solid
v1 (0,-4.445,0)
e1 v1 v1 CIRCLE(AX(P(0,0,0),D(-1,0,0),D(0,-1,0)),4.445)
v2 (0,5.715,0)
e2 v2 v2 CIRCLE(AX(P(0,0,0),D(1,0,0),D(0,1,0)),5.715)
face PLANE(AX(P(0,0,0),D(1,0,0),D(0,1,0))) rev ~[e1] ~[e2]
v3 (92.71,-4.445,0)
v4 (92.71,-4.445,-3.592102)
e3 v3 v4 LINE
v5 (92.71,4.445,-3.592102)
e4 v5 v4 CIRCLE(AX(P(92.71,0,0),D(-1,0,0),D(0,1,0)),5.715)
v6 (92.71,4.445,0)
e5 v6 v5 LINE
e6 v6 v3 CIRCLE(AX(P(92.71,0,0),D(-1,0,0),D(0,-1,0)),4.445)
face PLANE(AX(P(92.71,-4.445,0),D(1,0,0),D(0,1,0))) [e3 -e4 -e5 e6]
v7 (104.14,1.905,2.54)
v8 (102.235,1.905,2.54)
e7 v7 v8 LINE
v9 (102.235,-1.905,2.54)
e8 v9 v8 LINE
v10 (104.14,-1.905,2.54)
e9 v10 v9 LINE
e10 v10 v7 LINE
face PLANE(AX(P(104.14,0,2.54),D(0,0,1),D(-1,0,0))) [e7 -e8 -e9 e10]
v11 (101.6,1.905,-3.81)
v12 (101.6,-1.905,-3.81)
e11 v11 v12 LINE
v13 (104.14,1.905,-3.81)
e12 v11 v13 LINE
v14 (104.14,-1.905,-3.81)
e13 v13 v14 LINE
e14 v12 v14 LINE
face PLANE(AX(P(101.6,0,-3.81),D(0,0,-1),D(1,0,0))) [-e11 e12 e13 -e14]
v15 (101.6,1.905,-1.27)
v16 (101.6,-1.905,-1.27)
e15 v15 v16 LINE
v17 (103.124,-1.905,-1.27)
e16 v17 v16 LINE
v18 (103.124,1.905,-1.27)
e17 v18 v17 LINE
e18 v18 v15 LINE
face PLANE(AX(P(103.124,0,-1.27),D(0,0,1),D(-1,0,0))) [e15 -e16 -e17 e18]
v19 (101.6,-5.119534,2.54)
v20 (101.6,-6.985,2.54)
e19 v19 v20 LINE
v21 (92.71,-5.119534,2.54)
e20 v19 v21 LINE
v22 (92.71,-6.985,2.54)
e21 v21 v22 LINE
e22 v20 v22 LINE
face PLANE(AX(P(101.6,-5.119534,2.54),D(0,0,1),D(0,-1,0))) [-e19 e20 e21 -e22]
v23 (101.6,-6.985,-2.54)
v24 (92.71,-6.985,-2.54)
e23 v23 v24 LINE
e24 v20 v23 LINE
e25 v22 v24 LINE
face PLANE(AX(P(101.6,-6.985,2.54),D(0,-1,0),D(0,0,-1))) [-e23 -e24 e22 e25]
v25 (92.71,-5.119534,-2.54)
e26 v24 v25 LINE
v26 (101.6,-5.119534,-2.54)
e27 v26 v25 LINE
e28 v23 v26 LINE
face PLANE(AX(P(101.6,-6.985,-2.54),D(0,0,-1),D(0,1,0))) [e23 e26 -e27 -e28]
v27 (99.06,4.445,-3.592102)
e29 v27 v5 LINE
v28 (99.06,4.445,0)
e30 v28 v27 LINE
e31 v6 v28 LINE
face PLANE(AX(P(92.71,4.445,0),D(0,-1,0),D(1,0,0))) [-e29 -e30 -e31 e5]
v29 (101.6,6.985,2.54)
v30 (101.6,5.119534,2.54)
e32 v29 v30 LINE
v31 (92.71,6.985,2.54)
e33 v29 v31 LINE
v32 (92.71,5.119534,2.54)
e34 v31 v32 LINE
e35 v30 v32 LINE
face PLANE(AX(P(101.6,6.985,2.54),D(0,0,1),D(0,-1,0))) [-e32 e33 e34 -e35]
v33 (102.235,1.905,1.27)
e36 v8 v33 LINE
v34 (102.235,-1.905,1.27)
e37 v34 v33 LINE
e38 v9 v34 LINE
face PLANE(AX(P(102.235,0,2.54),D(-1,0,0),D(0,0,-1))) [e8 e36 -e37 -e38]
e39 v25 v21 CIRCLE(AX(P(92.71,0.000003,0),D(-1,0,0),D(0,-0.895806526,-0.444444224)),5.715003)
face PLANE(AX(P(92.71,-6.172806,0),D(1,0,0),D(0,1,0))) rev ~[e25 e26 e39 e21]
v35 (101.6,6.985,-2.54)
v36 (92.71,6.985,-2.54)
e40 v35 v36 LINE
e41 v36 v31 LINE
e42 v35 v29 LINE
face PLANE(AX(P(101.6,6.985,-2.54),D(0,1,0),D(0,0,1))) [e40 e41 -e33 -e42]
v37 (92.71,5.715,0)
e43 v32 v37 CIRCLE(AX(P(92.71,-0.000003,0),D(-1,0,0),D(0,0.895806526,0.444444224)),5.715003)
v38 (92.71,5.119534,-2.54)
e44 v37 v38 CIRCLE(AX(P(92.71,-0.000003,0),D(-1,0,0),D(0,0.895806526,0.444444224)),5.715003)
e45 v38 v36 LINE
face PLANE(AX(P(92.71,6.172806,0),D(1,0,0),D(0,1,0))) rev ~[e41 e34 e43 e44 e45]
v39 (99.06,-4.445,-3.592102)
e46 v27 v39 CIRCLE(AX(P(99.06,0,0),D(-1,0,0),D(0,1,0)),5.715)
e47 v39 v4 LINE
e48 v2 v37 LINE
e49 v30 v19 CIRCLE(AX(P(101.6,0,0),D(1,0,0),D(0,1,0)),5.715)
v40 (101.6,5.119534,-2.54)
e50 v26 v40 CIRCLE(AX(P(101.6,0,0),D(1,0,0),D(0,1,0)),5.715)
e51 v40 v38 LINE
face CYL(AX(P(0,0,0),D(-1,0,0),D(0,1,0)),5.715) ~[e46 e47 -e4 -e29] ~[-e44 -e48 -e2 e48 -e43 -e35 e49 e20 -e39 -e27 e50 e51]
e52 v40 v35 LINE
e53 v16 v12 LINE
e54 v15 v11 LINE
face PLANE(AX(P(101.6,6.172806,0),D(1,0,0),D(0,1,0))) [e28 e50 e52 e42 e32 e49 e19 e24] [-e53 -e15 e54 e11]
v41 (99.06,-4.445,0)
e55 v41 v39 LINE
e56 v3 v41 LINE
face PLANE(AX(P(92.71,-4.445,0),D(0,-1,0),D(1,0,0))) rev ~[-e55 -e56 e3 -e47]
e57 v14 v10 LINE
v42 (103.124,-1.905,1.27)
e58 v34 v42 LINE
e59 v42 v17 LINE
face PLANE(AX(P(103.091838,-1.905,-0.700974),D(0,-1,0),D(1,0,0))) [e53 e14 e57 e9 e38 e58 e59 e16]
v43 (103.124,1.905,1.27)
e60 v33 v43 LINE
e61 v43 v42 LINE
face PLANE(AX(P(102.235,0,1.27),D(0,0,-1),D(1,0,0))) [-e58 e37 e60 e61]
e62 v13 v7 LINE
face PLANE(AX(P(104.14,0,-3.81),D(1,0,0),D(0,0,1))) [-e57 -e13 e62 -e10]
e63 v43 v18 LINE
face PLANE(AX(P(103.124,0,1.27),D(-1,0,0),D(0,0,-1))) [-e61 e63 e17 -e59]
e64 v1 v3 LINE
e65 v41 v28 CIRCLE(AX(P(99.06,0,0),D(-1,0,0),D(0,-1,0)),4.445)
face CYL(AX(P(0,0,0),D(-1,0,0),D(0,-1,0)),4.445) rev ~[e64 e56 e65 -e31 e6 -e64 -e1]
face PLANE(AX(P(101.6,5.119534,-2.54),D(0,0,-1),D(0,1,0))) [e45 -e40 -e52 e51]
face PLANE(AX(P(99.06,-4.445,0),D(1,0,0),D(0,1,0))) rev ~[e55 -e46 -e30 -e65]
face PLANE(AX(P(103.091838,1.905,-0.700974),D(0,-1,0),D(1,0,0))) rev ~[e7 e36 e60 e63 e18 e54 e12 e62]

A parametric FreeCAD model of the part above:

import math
import FreeCAD as App
import Part
import Sketcher
from FreeCAD import Vector
Q = App.Units.Quantity


def add_polygon(sketch, points):
    """Adds a closed chain of lines whose ends are joined by coincident constraints."""
    first, n = sketch.GeometryCount, len(points)
    for a, b in zip(points, points[1:] + points[:1]):
        sketch.addGeometry(Part.LineSegment(App.Vector(*a, 0), App.Vector(*b, 0)), False)
    for i in range(n):
        sketch.addConstraint(Sketcher.Constraint("Coincident", first + i, 2, first + (i + 1) % n, 1))

doc = App.newDocument("Part")
body = doc.addObject("PartDesign::Body", "Body")

# Sketch on YZ plane
sketch1 = doc.addObject("Sketcher::SketchObject", "Sketch")
body.addObject(sketch1)
sketch1.AttachmentSupport = (doc.YZ_Plane, [""])
sketch1.MapMode = "FlatFace"
sketch1.addGeometry(Part.Circle(Vector(0, 0, 0), Vector(0, 0, 1), 5.715), False)
sketch1.addConstraint([
    Sketcher.Constraint("Coincident", 0, 3, -1, 1),
    Sketcher.Constraint("Diameter", 0, Q("0.45 in")),
])
pad1 = doc.addObject("PartDesign::Pad", "Pad")
body.addObject(pad1)
pad1.Profile = sketch1
pad1.Length = Q("4 in")

# Sketch on YZ plane
sketch2 = doc.addObject("Sketcher::SketchObject", "Sketch001")
body.addObject(sketch2)
sketch2.AttachmentSupport = (doc.YZ_Plane, [""])
sketch2.MapMode = "FlatFace"
sketch2.addGeometry(Part.Circle(Vector(0, 0, 0), Vector(0, 0, 1), 4.445), False)
sketch2.addConstraint([
    Sketcher.Constraint("Coincident", 0, 3, -1, 1),
    Sketcher.Constraint("Diameter", 0, Q("0.35 in")),
])
pocket1 = doc.addObject("PartDesign::Pocket", "Pocket")
body.addObject(pocket1)
pocket1.Profile = sketch2
pocket1.Length = Q("3.9 in")
pocket1.Reversed = True

# Sketch on XY plane
sketch3 = doc.addObject("Sketcher::SketchObject", "Sketch002")
body.addObject(sketch3)
sketch3.AttachmentSupport = (doc.XY_Plane, [""])
sketch3.MapMode = "FlatFace"
add_polygon(sketch3, [(92.71, 4.445), (92.71, -4.445), (99.06, -4.445), (99.06, 4.445)])  # lines 0-3
sketch3.addConstraint([
    Sketcher.Constraint("Vertical", 0),
    Sketcher.Constraint("Horizontal", 1),
    Sketcher.Constraint("Vertical", 2),
    Sketcher.Constraint("Horizontal", 3),
    Sketcher.Constraint("DistanceX", 1, 1, 1, 2, Q("0.25 in")),
    Sketcher.Constraint("DistanceY", 0, 2, 0, 1, Q("0.35 in")),
    Sketcher.Constraint("DistanceX", -1, 1, 1, 2, Q("3.9 in")),
    Sketcher.Constraint("DistanceY", 0, 2, -1, 1, Q("0.175 in")),
])
pocket2 = doc.addObject("PartDesign::Pocket", "Pocket001")
body.addObject(pocket2)
pocket2.Profile = sketch3
pocket2.Length = Q("1 in")

# Sketch on YZ plane
sketch4 = doc.addObject("Sketcher::SketchObject", "Sketch003")
body.addObject(sketch4)
sketch4.AttachmentSupport = (doc.YZ_Plane, [""])
sketch4.MapMode = "FlatFace"
sketch4.AttachmentOffset = App.Placement(Vector(0, 0, 4 * 25.4), App.Rotation())
sketch4.addGeometry([
    Part.LineSegment(Vector(6.985, 2.54, 0), Vector(5.119534, 2.54, 0)),  # 0
    Part.ArcOfCircle(Part.Circle(Vector(-0.000003, 0, 0), Vector(0, 0, 1), 5.715003), math.radians(-26.387786), math.radians(26.387786)),  # 1
    Part.LineSegment(Vector(5.119534, -2.54, 0), Vector(6.985, -2.54, 0)),  # 2
    Part.LineSegment(Vector(6.985, -2.54, 0), Vector(6.985, 2.54, 0)),  # 3
    Part.LineSegment(Vector(-6.985, -2.54, 0), Vector(-5.119534, -2.54, 0)),  # 4
    Part.ArcOfCircle(Part.Circle(Vector(0.000003, 0, 0), Vector(0, 0, 1), 5.715003), math.radians(153.612214), math.radians(206.387786)),  # 5
    Part.LineSegment(Vector(-5.119534, 2.54, 0), Vector(-6.985, 2.54, 0)),  # 6
    Part.LineSegment(Vector(-6.985, 2.54, 0), Vector(-6.985, -2.54, 0)),  # 7
], False)
sketch4.addConstraint([
    Sketcher.Constraint("Coincident", 0, 2, 1, 2),
    Sketcher.Constraint("Coincident", 1, 1, 2, 1),
    Sketcher.Constraint("Coincident", 2, 2, 3, 1),
    Sketcher.Constraint("Coincident", 3, 2, 0, 1),
    Sketcher.Constraint("Coincident", 4, 2, 5, 2),
    Sketcher.Constraint("Coincident", 5, 1, 6, 1),
    Sketcher.Constraint("Coincident", 6, 2, 7, 1),
    Sketcher.Constraint("Coincident", 7, 2, 4, 1),
    Sketcher.Constraint("Horizontal", 0),
    Sketcher.Constraint("Horizontal", 2),
    Sketcher.Constraint("Vertical", 3),
    Sketcher.Constraint("Horizontal", 4),
    Sketcher.Constraint("Horizontal", 6),
    Sketcher.Constraint("Vertical", 7),
    Sketcher.Constraint("Coincident", 1, 3, -1, 1),
    Sketcher.Constraint("Coincident", 5, 3, -1, 1),
    Sketcher.Constraint("Equal", 1, 5),
    Sketcher.Constraint("Symmetric", 2, 2, 6, 2, -1, 1),
    Sketcher.Constraint("Horizontal", 2, 2, 4, 2),
    Sketcher.Constraint("Horizontal", 3, 2, 5, 1),
    Sketcher.Constraint("DistanceY", 3, 1, 3, 2, Q("0.2 in")),
    Sketcher.Constraint("Radius", 1, Q("0.2250001 in")),
    Sketcher.Constraint("DistanceX", -1, 1, 2, 2, Q("0.275 in")),
])
pad2 = doc.addObject("PartDesign::Pad", "Pad001")
body.addObject(pad2)
pad2.Profile = sketch4
pad2.Length = Q("0.35 in")
pad2.Reversed = True

# Sketch on XZ plane
sketch5 = doc.addObject("Sketcher::SketchObject", "Sketch004")
body.addObject(sketch5)
sketch5.AttachmentSupport = (doc.XZ_Plane, [""])
sketch5.MapMode = "FlatFace"
add_polygon(sketch5, [(102.235, 1.27), (103.124, 1.27), (103.124, -1.27), (101.6, -1.27), (101.6, -3.81), (104.14, -3.81), (104.14, 2.54), (102.235, 2.54)])  # lines 0-7
sketch5.addConstraint([
    Sketcher.Constraint("Horizontal", 0),
    Sketcher.Constraint("Vertical", 1),
    Sketcher.Constraint("Horizontal", 2),
    Sketcher.Constraint("Vertical", 3),
    Sketcher.Constraint("Horizontal", 4),
    Sketcher.Constraint("Vertical", 5),
    Sketcher.Constraint("Horizontal", 6),
    Sketcher.Constraint("Vertical", 7),
    Sketcher.Constraint("Equal", 4, 1),
    Sketcher.Constraint("Equal", 1, 3),
    Sketcher.Constraint("DistanceX", 4, 1, 4, 2, Q("0.1 in")),
    Sketcher.Constraint("DistanceX", -1, 1, 2, 2, Q("4 in")),
    Sketcher.Constraint("DistanceX", 2, 2, 2, 1, Q("0.06 in")),
    Sketcher.Constraint("DistanceY", 5, 1, 5, 2, Q("0.25 in")),
    Sketcher.Constraint("DistanceY", -1, 1, 5, 2, Q("0.1 in")),
    Sketcher.Constraint("DistanceX", 0, 1, 0, 2, Q("0.035 in")),
])
pad3 = doc.addObject("PartDesign::Pad", "Pad002")
body.addObject(pad3)
pad3.Profile = sketch5
pad3.Type = "TwoLengths"
pad3.Length = Q("0.075 in")
pad3.Length2 = Q("0.075 in")

doc.recompute()
